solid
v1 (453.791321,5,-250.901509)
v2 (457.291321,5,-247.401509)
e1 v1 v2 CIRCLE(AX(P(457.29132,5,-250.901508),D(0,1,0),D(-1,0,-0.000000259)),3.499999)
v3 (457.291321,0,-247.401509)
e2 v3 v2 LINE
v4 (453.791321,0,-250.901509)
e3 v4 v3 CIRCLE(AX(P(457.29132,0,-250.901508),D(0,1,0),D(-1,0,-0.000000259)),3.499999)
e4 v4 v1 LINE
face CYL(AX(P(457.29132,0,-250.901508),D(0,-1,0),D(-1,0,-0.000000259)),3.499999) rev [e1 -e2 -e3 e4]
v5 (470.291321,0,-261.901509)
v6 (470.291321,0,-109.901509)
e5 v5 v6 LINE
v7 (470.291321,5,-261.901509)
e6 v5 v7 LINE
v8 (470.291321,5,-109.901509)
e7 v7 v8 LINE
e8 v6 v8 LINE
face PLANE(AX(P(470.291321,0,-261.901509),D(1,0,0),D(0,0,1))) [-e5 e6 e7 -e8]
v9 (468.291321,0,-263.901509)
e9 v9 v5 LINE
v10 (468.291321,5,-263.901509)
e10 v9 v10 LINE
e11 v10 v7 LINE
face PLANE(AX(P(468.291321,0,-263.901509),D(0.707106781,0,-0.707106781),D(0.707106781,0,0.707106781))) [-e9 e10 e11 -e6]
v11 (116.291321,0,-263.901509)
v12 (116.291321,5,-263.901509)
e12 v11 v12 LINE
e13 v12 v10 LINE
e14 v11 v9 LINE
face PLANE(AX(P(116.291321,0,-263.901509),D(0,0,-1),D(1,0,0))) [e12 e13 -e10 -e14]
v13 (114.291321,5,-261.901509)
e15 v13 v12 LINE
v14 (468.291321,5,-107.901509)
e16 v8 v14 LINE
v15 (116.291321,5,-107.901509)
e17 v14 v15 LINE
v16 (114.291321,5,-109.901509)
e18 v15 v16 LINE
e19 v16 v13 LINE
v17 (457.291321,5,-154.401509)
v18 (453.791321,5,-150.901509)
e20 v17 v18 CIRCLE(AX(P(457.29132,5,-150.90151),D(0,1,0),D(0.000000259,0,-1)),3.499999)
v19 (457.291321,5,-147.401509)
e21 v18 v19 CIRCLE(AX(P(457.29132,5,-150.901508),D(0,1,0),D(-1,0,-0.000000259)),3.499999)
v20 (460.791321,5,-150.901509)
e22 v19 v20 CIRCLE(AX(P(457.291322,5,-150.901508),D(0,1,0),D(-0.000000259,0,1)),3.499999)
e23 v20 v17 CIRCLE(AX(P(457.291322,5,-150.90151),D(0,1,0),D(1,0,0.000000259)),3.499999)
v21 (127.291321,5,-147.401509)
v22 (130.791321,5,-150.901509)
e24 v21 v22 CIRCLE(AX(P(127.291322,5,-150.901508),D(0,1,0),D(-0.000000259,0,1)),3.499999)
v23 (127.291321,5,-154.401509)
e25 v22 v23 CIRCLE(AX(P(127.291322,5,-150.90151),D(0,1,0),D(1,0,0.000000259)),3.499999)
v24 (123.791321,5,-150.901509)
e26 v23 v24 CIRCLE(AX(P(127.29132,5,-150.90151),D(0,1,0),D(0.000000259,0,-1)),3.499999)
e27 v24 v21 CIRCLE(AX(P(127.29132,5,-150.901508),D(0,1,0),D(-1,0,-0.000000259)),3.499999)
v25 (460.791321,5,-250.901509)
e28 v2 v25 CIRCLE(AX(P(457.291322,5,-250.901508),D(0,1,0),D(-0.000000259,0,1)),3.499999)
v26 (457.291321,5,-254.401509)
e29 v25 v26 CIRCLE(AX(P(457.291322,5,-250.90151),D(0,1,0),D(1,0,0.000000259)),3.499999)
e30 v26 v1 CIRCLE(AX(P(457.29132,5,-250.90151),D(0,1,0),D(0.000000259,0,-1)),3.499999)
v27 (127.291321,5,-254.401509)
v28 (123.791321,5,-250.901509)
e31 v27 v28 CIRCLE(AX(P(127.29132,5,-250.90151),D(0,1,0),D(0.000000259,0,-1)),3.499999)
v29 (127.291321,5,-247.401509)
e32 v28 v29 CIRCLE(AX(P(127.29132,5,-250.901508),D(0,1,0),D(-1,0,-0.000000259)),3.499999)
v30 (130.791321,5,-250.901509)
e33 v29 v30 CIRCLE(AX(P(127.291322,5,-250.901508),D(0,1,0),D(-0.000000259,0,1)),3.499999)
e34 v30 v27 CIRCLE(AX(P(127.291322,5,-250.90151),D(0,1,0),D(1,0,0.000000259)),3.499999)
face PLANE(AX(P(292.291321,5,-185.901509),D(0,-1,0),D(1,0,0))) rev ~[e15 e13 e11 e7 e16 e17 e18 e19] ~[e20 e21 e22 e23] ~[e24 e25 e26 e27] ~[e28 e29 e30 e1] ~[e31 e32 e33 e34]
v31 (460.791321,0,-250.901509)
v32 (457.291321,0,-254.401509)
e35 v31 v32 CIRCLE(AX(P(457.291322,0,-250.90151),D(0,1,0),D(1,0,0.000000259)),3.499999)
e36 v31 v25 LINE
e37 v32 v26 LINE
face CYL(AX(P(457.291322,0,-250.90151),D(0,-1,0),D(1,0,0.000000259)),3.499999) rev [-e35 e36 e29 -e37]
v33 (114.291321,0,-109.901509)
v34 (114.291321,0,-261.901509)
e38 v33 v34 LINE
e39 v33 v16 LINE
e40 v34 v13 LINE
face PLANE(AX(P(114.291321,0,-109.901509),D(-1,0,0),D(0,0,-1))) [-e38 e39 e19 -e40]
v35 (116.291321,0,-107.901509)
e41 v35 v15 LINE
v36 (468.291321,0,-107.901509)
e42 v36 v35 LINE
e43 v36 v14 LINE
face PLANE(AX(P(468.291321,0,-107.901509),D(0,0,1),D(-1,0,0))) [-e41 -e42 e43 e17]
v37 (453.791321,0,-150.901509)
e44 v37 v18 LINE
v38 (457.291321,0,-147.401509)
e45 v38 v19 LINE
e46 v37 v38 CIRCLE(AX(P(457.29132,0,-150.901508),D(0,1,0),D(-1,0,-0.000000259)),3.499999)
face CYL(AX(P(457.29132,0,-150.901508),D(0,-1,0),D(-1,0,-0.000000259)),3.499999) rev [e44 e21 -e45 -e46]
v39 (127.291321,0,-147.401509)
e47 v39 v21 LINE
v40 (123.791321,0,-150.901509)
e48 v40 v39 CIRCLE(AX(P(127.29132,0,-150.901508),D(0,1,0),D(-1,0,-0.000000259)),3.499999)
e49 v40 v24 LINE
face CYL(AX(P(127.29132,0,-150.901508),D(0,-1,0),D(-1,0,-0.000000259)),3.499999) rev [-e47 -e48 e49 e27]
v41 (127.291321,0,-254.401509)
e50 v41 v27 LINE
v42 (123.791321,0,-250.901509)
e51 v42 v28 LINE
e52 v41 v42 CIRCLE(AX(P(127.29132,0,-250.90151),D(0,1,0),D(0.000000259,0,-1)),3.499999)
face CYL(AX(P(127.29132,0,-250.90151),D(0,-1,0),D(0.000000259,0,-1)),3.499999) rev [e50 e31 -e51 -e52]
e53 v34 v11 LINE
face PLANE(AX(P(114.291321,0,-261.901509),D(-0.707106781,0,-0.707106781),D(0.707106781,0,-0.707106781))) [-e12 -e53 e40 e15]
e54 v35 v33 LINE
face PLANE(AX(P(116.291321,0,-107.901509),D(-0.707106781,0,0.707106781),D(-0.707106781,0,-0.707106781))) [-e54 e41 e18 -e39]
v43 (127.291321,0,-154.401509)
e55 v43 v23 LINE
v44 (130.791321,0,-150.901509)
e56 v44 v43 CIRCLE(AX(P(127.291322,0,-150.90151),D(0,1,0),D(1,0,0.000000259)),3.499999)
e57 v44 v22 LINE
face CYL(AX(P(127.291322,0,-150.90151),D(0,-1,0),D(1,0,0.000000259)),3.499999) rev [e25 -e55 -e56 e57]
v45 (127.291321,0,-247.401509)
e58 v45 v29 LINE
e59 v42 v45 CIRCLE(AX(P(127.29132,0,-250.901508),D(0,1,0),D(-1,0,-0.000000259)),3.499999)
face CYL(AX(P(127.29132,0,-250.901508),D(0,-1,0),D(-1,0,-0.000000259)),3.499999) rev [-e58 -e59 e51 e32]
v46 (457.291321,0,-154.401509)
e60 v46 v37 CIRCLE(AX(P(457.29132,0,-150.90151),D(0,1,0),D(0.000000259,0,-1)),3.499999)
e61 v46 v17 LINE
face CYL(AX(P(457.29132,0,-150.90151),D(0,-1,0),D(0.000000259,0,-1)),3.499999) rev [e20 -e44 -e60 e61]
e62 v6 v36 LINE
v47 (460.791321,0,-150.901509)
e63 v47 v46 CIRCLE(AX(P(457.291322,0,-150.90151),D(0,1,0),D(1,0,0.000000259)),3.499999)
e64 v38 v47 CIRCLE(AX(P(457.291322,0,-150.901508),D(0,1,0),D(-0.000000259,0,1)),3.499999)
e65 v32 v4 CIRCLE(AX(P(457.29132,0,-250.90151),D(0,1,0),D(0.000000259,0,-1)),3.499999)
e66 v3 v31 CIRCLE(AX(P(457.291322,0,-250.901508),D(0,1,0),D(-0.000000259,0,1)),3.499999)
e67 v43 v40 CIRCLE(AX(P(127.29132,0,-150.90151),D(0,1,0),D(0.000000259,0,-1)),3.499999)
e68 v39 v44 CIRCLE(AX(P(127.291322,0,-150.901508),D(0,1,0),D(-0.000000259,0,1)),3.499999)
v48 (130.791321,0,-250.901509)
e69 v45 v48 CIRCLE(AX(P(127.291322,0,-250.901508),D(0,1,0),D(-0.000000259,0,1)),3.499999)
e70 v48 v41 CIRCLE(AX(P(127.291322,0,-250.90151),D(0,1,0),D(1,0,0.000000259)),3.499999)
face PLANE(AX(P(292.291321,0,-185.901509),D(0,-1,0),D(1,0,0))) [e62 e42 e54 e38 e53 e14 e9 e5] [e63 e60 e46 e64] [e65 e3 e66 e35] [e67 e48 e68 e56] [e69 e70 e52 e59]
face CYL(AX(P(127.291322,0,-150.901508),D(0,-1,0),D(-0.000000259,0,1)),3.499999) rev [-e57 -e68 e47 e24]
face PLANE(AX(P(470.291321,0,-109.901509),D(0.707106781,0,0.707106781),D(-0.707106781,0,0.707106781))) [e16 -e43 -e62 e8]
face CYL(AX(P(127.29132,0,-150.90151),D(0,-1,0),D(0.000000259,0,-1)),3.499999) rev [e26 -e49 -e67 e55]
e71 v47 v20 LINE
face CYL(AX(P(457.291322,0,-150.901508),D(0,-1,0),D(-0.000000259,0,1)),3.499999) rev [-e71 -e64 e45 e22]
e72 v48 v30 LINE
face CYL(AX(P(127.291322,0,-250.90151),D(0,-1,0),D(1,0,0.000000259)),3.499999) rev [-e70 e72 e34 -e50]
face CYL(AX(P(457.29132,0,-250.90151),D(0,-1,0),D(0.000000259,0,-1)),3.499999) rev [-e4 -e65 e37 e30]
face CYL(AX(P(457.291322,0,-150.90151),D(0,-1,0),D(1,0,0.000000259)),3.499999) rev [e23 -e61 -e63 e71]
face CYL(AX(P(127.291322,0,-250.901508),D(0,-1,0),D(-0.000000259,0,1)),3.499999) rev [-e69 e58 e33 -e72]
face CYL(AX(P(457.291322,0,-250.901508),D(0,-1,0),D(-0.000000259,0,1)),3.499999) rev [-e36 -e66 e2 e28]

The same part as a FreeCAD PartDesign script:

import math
import FreeCAD as App
import Part
import Sketcher

doc = App.newDocument("Part")
body = doc.addObject("PartDesign::Body", "Body")

# Sketch on XZ plane
sketch1 = body.newObject("Sketcher::SketchObject", "Sketch")
sketch1.AttachmentSupport = (doc.getObject("XZ_Plane"), [""])
sketch1.MapMode = "FlatFace"
sketch1.addGeometry([
    Part.LineSegment(App.Vector(468.3, -107.9, 0), App.Vector(116.3, -107.9, 0)),  # 0
    Part.LineSegment(App.Vector(116.3, -107.9, 0), App.Vector(114.3, -109.9, 0)),  # 1
    Part.LineSegment(App.Vector(114.3, -109.9, 0), App.Vector(114.3, -261.9, 0)),  # 2
    Part.LineSegment(App.Vector(114.3, -261.9, 0), App.Vector(116.3, -263.9, 0)),  # 3
    Part.LineSegment(App.Vector(116.3, -263.9, 0), App.Vector(468.3, -263.9, 0)),  # 4
    Part.LineSegment(App.Vector(468.3, -263.9, 0), App.Vector(470.3, -261.9, 0)),  # 5
    Part.LineSegment(App.Vector(470.3, -261.9, 0), App.Vector(470.3, -109.9, 0)),  # 6
    Part.LineSegment(App.Vector(470.3, -109.9, 0), App.Vector(468.3, -107.9, 0)),  # 7
    Part.ArcOfCircle(Part.Circle(App.Vector(127.3, -250.9, 0), App.Vector(0, 0, 1), 3.5), math.radians(90), math.radians(180)),  # 8
    Part.ArcOfCircle(Part.Circle(App.Vector(127.3, -250.9, 0), App.Vector(0, 0, 1), 3.5), math.radians(0), math.radians(90)),  # 9
    Part.ArcOfCircle(Part.Circle(App.Vector(127.3, -250.9, 0), App.Vector(0, 0, 1), 3.5), math.radians(-90), math.radians(0)),  # 10
    Part.ArcOfCircle(Part.Circle(App.Vector(127.3, -250.9, 0), App.Vector(0, 0, 1), 3.5), math.radians(180), math.radians(270)),  # 11
    Part.ArcOfCircle(Part.Circle(App.Vector(457.3, -250.9, 0), App.Vector(0, 0, 1), 3.5), math.radians(90), math.radians(180)),  # 12
    Part.ArcOfCircle(Part.Circle(App.Vector(457.3, -250.9, 0), App.Vector(0, 0, 1), 3.5), math.radians(0), math.radians(90)),  # 13
    Part.ArcOfCircle(Part.Circle(App.Vector(457.3, -250.9, 0), App.Vector(0, 0, 1), 3.5), math.radians(-90), math.radians(0)),  # 14
    Part.ArcOfCircle(Part.Circle(App.Vector(457.3, -250.9, 0), App.Vector(0, 0, 1), 3.5), math.radians(180), math.radians(270)),  # 15
    Part.ArcOfCircle(Part.Circle(App.Vector(127.3, -150.9, 0), App.Vector(0, 0, 1), 3.5), math.radians(90), math.radians(180)),  # 16
    Part.ArcOfCircle(Part.Circle(App.Vector(127.3, -150.9, 0), App.Vector(0, 0, 1), 3.5), math.radians(0), math.radians(90)),  # 17
    Part.ArcOfCircle(Part.Circle(App.Vector(127.3, -150.9, 0), App.Vector(0, 0, 1), 3.5), math.radians(-90), math.radians(0)),  # 18
    Part.ArcOfCircle(Part.Circle(App.Vector(127.3, -150.9, 0), App.Vector(0, 0, 1), 3.5), math.radians(180), math.radians(270)),  # 19
    Part.ArcOfCircle(Part.Circle(App.Vector(457.3, -150.9, 0), App.Vector(0, 0, 1), 3.5), math.radians(90), math.radians(180)),  # 20
    Part.ArcOfCircle(Part.Circle(App.Vector(457.3, -150.9, 0), App.Vector(0, 0, 1), 3.5), math.radians(0), math.radians(90)),  # 21
    Part.ArcOfCircle(Part.Circle(App.Vector(457.3, -150.9, 0), App.Vector(0, 0, 1), 3.5), math.radians(-90), math.radians(0)),  # 22
    Part.ArcOfCircle(Part.Circle(App.Vector(457.3, -150.9, 0), App.Vector(0, 0, 1), 3.5), math.radians(180), math.radians(270)),  # 23
], False)
sketch1.addConstraint([
    Sketcher.Constraint("Coincident", 0, 2, 1, 1),
    Sketcher.Constraint("Coincident", 1, 2, 2, 1),
    Sketcher.Constraint("Coincident", 2, 2, 3, 1),
    Sketcher.Constraint("Coincident", 3, 2, 4, 1),
    Sketcher.Constraint("Coincident", 4, 2, 5, 1),
    Sketcher.Constraint("Coincident", 5, 2, 6, 1),
    Sketcher.Constraint("Coincident", 6, 2, 7, 1),
    Sketcher.Constraint("Coincident", 7, 2, 0, 1),
    Sketcher.Constraint("Tangent", 8, 1, 9, 2),
    Sketcher.Constraint("Tangent", 9, 1, 10, 2),
    Sketcher.Constraint("Tangent", 10, 1, 11, 2),
    Sketcher.Constraint("Tangent", 11, 1, 8, 2),
    Sketcher.Constraint("Tangent", 12, 1, 13, 2),
    Sketcher.Constraint("Tangent", 13, 1, 14, 2),
    Sketcher.Constraint("Tangent", 14, 1, 15, 2),
    Sketcher.Constraint("Tangent", 15, 1, 12, 2),
    Sketcher.Constraint("Tangent", 16, 1, 17, 2),
    Sketcher.Constraint("Tangent", 17, 1, 18, 2),
    Sketcher.Constraint("Tangent", 18, 1, 19, 2),
    Sketcher.Constraint("Tangent", 19, 1, 16, 2),
    Sketcher.Constraint("Tangent", 20, 1, 21, 2),
    Sketcher.Constraint("Tangent", 21, 1, 22, 2),
    Sketcher.Constraint("Tangent", 22, 1, 23, 2),
    Sketcher.Constraint("Tangent", 23, 1, 20, 2),
    Sketcher.Constraint("Horizontal", 0),
    Sketcher.Constraint("Vertical", 2),
    Sketcher.Constraint("Horizontal", 4),
    Sketcher.Constraint("Vertical", 6),
    Sketcher.Constraint("Equal", 8, 9),
    Sketcher.Constraint("Equal", 11, 12),
    Sketcher.Constraint("Equal", 12, 13),
    Sketcher.Constraint("Equal", 15, 16),
    Sketcher.Constraint("Equal", 16, 17),
    Sketcher.Constraint("Equal", 19, 20),
    Sketcher.Constraint("Equal", 20, 21),
    Sketcher.Constraint("Perpendicular", 1, 3),
    Sketcher.Constraint("Perpendicular", 3, 5),
    Sketcher.Constraint("Perpendicular", 5, 7),
    Sketcher.Constraint("Horizontal", 11, 3, 12, 3),
    Sketcher.Constraint("Horizontal", 19, 3, 20, 3),
    Sketcher.Constraint("Horizontal", 2, 2, 5, 2),
    Sketcher.Constraint("Horizontal", 1, 2, 6, 2),
    Sketcher.Constraint("Horizontal", 15, 3, 9, 1),
    Sketcher.Constraint("Horizontal", 9, 1, 11, 1),
    Sketcher.Constraint("Horizontal", 11, 1, 13, 1),
    Sketcher.Constraint("Horizontal", 13, 1, 15, 1),
    Sketcher.Constraint("Horizontal", 23, 3, 17, 1),
    Sketcher.Constraint("Horizontal", 17, 1, 19, 1),
    Sketcher.Constraint("Horizontal", 19, 1, 21, 1),
    Sketcher.Constraint("Horizontal", 21, 1, 23, 1),
    Sketcher.Constraint("Vertical", 11, 3, 16, 3),
    Sketcher.Constraint("Vertical", 15, 3, 20, 3),
    Sketcher.Constraint("Vertical", 0, 2, 3, 2),
    Sketcher.Constraint("Vertical", 4, 2, 7, 2),
    Sketcher.Constraint("Vertical", 19, 3, 8, 1),
    Sketcher.Constraint("Vertical", 8, 1, 10, 1),
    Sketcher.Constraint("Vertical", 23, 3, 12, 1),
    Sketcher.Constraint("Vertical", 12, 1, 14, 1),
    Sketcher.Constraint("Vertical", 10, 1, 16, 1),
    Sketcher.Constraint("Vertical", 16, 1, 18, 1),
    Sketcher.Constraint("Vertical", 14, 1, 20, 1),
    Sketcher.Constraint("Vertical", 20, 1, 22, 1),
    Sketcher.Constraint("Radius", 8, 3.499999),
    Sketcher.Constraint("DistanceX", 0, 2, 0, 1, 352.0),
    Sketcher.Constraint("DistanceY", 2, 2, 2, 1, 152.0),
    Sketcher.Constraint("DistanceX", 9, 3, 12, 3, 329.999998),
    Sketcher.Constraint("DistanceY", 8, 3, 16, 3, 100.0),
    Sketcher.Constraint("DistanceX", 0, 2, 16, 3, 10.999999),
    Sketcher.Constraint("DistanceY", 16, 3, 0, 2, 42.999999),
    Sketcher.Constraint("DistanceX", 1, 2, 0, 2, 2.0),
    Sketcher.Constraint("DistanceX", -1, 1, 8, 3, 127.29132),
    Sketcher.Constraint("DistanceY", 8, 3, -1, 1, 250.901508),
])
pad1 = body.newObject("PartDesign::Pad", "Pad")
pad1.Profile = sketch1
pad1.Length = 5
pad1.Reversed = True

doc.recompute()
